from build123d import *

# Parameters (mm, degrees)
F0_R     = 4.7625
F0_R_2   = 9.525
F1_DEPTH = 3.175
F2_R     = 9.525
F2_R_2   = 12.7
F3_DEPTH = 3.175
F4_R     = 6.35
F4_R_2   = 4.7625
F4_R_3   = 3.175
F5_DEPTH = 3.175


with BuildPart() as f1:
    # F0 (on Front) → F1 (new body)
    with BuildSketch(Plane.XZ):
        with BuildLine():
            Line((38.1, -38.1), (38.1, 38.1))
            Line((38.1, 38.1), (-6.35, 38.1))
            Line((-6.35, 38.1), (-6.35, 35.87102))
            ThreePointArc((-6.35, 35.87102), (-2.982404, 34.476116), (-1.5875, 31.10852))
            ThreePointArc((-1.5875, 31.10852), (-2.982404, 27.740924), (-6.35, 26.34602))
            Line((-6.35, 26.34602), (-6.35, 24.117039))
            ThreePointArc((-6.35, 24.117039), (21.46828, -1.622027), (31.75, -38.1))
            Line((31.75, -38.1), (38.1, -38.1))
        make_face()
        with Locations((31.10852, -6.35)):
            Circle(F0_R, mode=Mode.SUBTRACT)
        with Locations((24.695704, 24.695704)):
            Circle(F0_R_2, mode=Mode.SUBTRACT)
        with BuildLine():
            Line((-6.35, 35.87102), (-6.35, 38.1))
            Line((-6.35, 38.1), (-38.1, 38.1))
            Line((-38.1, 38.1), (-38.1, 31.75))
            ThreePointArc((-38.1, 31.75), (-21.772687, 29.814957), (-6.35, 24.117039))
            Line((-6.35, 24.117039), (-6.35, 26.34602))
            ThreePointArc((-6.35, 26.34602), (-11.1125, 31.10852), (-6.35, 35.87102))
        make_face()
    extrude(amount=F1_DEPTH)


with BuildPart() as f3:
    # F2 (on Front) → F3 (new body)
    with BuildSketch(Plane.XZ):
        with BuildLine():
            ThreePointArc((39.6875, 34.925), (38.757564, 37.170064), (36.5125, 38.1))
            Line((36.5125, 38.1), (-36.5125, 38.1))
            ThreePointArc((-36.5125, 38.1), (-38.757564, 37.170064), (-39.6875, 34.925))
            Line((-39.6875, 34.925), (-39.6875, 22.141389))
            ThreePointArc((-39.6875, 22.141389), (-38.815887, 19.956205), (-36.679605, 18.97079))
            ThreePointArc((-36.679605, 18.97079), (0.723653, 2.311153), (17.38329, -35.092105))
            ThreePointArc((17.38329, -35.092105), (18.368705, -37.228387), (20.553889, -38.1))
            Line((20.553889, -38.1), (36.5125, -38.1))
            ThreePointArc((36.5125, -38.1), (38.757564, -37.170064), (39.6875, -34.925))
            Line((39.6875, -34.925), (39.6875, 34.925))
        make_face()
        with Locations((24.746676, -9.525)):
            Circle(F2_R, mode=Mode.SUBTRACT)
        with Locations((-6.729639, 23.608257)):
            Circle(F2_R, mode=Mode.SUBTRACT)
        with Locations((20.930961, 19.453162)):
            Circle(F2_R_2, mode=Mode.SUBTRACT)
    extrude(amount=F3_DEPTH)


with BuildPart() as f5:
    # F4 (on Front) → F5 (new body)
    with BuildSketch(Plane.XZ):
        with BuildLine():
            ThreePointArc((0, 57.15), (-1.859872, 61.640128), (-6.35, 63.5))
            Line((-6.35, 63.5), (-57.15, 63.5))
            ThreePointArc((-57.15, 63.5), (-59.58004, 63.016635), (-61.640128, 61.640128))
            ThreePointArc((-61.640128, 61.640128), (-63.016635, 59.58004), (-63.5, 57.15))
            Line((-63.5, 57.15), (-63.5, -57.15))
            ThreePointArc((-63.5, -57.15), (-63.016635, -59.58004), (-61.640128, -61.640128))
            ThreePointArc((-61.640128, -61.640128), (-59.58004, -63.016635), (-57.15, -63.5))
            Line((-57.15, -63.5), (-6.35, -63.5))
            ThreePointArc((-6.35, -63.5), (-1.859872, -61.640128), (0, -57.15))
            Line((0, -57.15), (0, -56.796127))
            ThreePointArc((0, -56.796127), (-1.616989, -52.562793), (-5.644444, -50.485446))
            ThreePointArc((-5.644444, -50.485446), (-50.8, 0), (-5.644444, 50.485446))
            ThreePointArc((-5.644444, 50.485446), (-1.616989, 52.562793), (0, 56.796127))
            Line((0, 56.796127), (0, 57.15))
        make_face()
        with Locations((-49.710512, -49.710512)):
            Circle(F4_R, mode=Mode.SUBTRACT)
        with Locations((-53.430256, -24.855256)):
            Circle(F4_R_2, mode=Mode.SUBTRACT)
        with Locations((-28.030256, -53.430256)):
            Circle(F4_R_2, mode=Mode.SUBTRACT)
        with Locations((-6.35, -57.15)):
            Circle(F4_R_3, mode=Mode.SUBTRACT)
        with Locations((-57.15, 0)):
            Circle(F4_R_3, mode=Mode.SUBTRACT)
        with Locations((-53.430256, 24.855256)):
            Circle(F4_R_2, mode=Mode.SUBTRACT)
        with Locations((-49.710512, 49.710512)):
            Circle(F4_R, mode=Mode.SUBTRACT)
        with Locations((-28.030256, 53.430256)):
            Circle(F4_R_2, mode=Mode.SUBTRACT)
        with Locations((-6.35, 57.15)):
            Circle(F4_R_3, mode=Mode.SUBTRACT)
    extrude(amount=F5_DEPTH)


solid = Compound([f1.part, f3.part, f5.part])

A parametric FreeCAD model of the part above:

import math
import FreeCAD as App
import Part
import Sketcher
from FreeCAD import Vector
Q = App.Units.Quantity

doc = App.newDocument("Part")
params = doc.addObject("Spreadsheet::Sheet", "Params")
for row, (alias, value) in enumerate([
    ("sketch1_diameter", "0.75 in"),
    ("sketch1_width", "3 in"),
    ("sketch1_radius", "2.75 in"),
    ("sketch1_diameter2", "0.375 in"),
    ("pad1_length", "0.125 in"),
    ("sketch2_diameter", "1 in"),
    ("sketch2_diameter2", "0.75 in"),
    ("sketch2_radius", "2.2499999 in"),
    ("sketch2_radius2", "0.125 in"),
    ("sketch2_height", "2.75 in"),
    ("pad2_length", "0.125 in"),
    ("sketch3_radius", "2 in"),
    ("sketch3_diameter", "0.5 in"),
    ("sketch3_diameter2", "0.25 in"),
    ("sketch3_width", "2 in"),
    ("sketch3_diameter3", "0.375 in"),
    ("pad3_length", "0.125 in"),
], start=1):
    params.set(f"A{row}", alias)
    params.set(f"B{row}", "=" + value)
    params.setAlias(f"B{row}", alias)

body = doc.addObject("PartDesign::Body", "Body")

# Sketch on XZ plane
sketch1 = body.newObject("Sketcher::SketchObject", "Sketch")
sketch1.AttachmentSupport = (doc.getObject("XZ_Plane"), [""])
sketch1.MapMode = "FlatFace"
sketch1.addGeometry([
    Part.LineSegment(Vector(38.1, -38.1, 0), Vector(38.1, 38.1, 0)),  # 0
    Part.LineSegment(Vector(38.1, 38.1, 0), Vector(-38.1, 38.1, 0)),  # 1
    Part.LineSegment(Vector(-38.1, 38.1, 0), Vector(-38.1, 31.8, 0)),  # 2
    Part.ArcOfCircle(Part.Circle(Vector(-38.1, -38.1, 0), Vector(0, 0, 1), 69.8), math.radians(63), math.radians(90)),  # 3
    Part.ArcOfCircle(Part.Circle(Vector(-38.1, -38.1, 0), Vector(0, 0, 1), 69.8), math.radians(0), math.radians(63)),  # 4
    Part.LineSegment(Vector(31.8, -38.1, 0), Vector(38.1, -38.1, 0)),  # 5
    Part.ArcOfCircle(Part.Circle(Vector(-6.4, 31.1, 0), Vector(0, 0, 1), 4.8), math.radians(0), math.radians(90)),  # 6
    Part.ArcOfCircle(Part.Circle(Vector(-6.4, 31.1, 0), Vector(0, 0, 1), 4.8), math.radians(-90), math.radians(0)),  # 7
    Part.ArcOfCircle(Part.Circle(Vector(-6.3, 31.1, 0), Vector(0, 0, 1), 4.8), math.radians(90), math.radians(270)),  # 8
    Part.Circle(Vector(31.1, -6.3, 0), Vector(0, 0, 1), 4.8),  # 9
    Part.Circle(Vector(24.7, 24.7, 0), Vector(0, 0, 1), 9.5),  # 10
], False)
sketch1.addConstraint([
    Sketcher.Constraint("Coincident", 0, 2, 1, 1),
    Sketcher.Constraint("Coincident", 1, 2, 2, 1),
    Sketcher.Constraint("Coincident", 2, 2, 3, 2),
    Sketcher.Constraint("Tangent", 3, 1, 4, 2),
    Sketcher.Constraint("Coincident", 4, 1, 5, 1),
    Sketcher.Constraint("Coincident", 5, 2, 0, 1),
    Sketcher.Constraint("Tangent", 6, 1, 7, 2),
    Sketcher.Constraint("Tangent", 7, 1, 8, 2),
    Sketcher.Constraint("Tangent", 8, 1, 6, 2),
    Sketcher.Constraint("Vertical", 0),
    Sketcher.Constraint("Horizontal", 1),
    Sketcher.Constraint("Vertical", 2),
    Sketcher.Constraint("Horizontal", 5),
    Sketcher.Constraint("Equal", 8, 9),
    Sketcher.Constraint("Symmetric", 1, 2, 5, 2, -1, 1),
    Sketcher.Constraint("Horizontal", 8, 3, 6, 1),
    Sketcher.Constraint("Vertical", 3, 3, 4, 3),
    Sketcher.Constraint("Vertical", 4, 3, 1, 2),
    Sketcher.Constraint("Vertical", 8, 3, 3, 1),
    Sketcher.Constraint("Vertical", 3, 1, 7, 1),
    Sketcher.Constraint("Vertical", 7, 1, 8, 1),
    Sketcher.Constraint("Equal", 1, 0),
    Sketcher.Constraint("Equal", 5, 2),
    Sketcher.Constraint("Diameter", 10, Q("0.75 in")),
    Sketcher.Constraint("DistanceX", 1, 2, 1, 1, Q("3 in")),
    Sketcher.Constraint("Radius", 4, Q("2.75 in")),
    Sketcher.Constraint("Diameter", 9, Q("0.375 in")),
    Sketcher.Constraint("DistanceX", 3, 1, 4, 1, Q("1.5 in")),
    Sketcher.Constraint("DistanceY", 9, 3, -1, 1, Q("0.25 in")),
    Sketcher.Constraint("DistanceX", 3, 3, 10, 3, 62.795701),
    Sketcher.Constraint("DistanceY", -1, 1, 6, 3, 31.10852),
    Sketcher.Constraint("DistanceX", -1, 1, 9, 3, 31.10852),
    Sketcher.Constraint("DistanceY", -1, 1, 10, 3, 24.695704),
])
sketch1.setExpression("Constraints[23]", "Params.sketch1_diameter")
sketch1.setExpression("Constraints[24]", "Params.sketch1_width")
sketch1.setExpression("Constraints[25]", "Params.sketch1_radius")
sketch1.setExpression("Constraints[26]", "Params.sketch1_diameter2")
pad1 = body.newObject("PartDesign::Pad", "Pad")
pad1.Profile = sketch1
pad1.setExpression("Length", "Params.pad1_length")
body2 = doc.addObject("PartDesign::Body", "Body001")

# Sketch on XZ plane
sketch2 = body2.newObject("Sketcher::SketchObject", "Sketch001")
sketch2.AttachmentSupport = (doc.getObject("XZ_Plane001"), [""])
sketch2.MapMode = "FlatFace"
sketch2.addGeometry([
    Part.ArcOfCircle(Part.Circle(Vector(36.5, 34.9, 0), Vector(0, 0, 1), 3.2), math.radians(0), math.radians(90)),  # 0
    Part.LineSegment(Vector(36.5, 38.1, 0), Vector(-36.5, 38.1, 0)),  # 1
    Part.ArcOfCircle(Part.Circle(Vector(-36.5, 34.9, 0), Vector(0, 0, 1), 3.2), math.radians(90), math.radians(180)),  # 2
    Part.LineSegment(Vector(-39.7, 34.9, 0), Vector(-39.7, 22.1, 0)),  # 3
    Part.ArcOfCircle(Part.Circle(Vector(-36.5, 22.1, 0), Vector(0, 0, 1), 3.2), math.radians(-180), math.radians(-93)),  # 4
    Part.ArcOfCircle(Part.Circle(Vector(-39.7, -38.1, 0), Vector(0, 0, 1), 57.1), math.radians(3), math.radians(87)),  # 5
    Part.ArcOfCircle(Part.Circle(Vector(20.6, -34.9, 0), Vector(0, 0, 1), 3.2), math.radians(-177), math.radians(-90)),  # 6
    Part.LineSegment(Vector(20.6, -38.1, 0), Vector(36.5, -38.1, 0)),  # 7
    Part.ArcOfCircle(Part.Circle(Vector(36.5, -34.9, 0), Vector(0, 0, 1), 3.2), math.radians(-90), math.radians(0)),  # 8
    Part.LineSegment(Vector(39.7, -34.9, 0), Vector(39.7, 34.9, 0)),  # 9
    Part.Circle(Vector(24.7, -9.5, 0), Vector(0, 0, 1), 9.5),  # 10
    Part.Circle(Vector(-6.7, 23.6, 0), Vector(0, 0, 1), 9.5),  # 11
    Part.Circle(Vector(20.9, 19.5, 0), Vector(0, 0, 1), 12.7),  # 12
], False)
sketch2.addConstraint([
    Sketcher.Constraint("Tangent", 0, 2, 1, 1),
    Sketcher.Constraint("Tangent", 1, 2, 2, 1),
    Sketcher.Constraint("Tangent", 2, 2, 3, 1),
    Sketcher.Constraint("Tangent", 3, 2, 4, 1),
    Sketcher.Constraint("Tangent", 4, 2, 5, 2),
    Sketcher.Constraint("Tangent", 5, 1, 6, 1),
    Sketcher.Constraint("Tangent", 6, 2, 7, 1),
    Sketcher.Constraint("Tangent", 7, 2, 8, 1),
    Sketcher.Constraint("Tangent", 8, 2, 9, 1),
    Sketcher.Constraint("Tangent", 9, 2, 0, 1),
    Sketcher.Constraint("Horizontal", 1),
    Sketcher.Constraint("Vertical", 3),
    Sketcher.Constraint("Horizontal", 7),
    Sketcher.Constraint("Vertical", 9),
    Sketcher.Constraint("Equal", 0, 2),
    Sketcher.Constraint("Equal", 2, 4),
    Sketcher.Constraint("Equal", 4, 6),
    Sketcher.Constraint("Equal", 6, 8),
    Sketcher.Constraint("Equal", 10, 11),
    Sketcher.Constraint("Symmetric", 2, 3, 8, 3, -1, 1),
    Sketcher.Constraint("Horizontal", 5, 3, 6, 2),
    Sketcher.Constraint("Vertical", 5, 3, 2, 2),
    Sketcher.Constraint("Diameter", 12, Q("1 in")),
    Sketcher.Constraint("Diameter", 10, Q("0.75 in")),
    Sketcher.Constraint("Radius", 5, Q("2.2499999 in")),
    Sketcher.Constraint("Radius", 0, Q("0.125 in")),
    Sketcher.Constraint("DistanceX", 5, 3, 0, 3, Q("2.9999999 in")),
    Sketcher.Constraint("DistanceY", 6, 3, 10, 3, Q("1 in")),
    Sketcher.Constraint("DistanceY", 9, 1, 9, 2, Q("2.75 in")),
    Sketcher.Constraint("DistanceX", 11, 3, 12, 3, Q("1.089 in")),
    Sketcher.Constraint("DistanceX", 11, 3, -1, 1, 6.729639),
    Sketcher.Constraint("DistanceY", -1, 1, 12, 3, 19.453162),
    Sketcher.Constraint("DistanceX", -1, 1, 10, 3, 24.746676),
    Sketcher.Constraint("DistanceY", -1, 1, 11, 3, 23.608257),
])
sketch2.setExpression("Constraints[22]", "Params.sketch2_diameter")
sketch2.setExpression("Constraints[23]", "Params.sketch2_diameter2")
sketch2.setExpression("Constraints[24]", "Params.sketch2_radius")
sketch2.setExpression("Constraints[25]", "Params.sketch2_radius2")
sketch2.setExpression("Constraints[28]", "Params.sketch2_height")
pad2 = body2.newObject("PartDesign::Pad", "Pad001")
pad2.Profile = sketch2
pad2.setExpression("Length", "Params.pad2_length")
body3 = doc.addObject("PartDesign::Body", "Body002")

# Sketch on XZ plane
sketch3 = body3.newObject("Sketcher::SketchObject", "Sketch002")
sketch3.AttachmentSupport = (doc.getObject("XZ_Plane002"), [""])
sketch3.MapMode = "FlatFace"
sketch3.addGeometry([
    Part.ArcOfCircle(Part.Circle(Vector(-6.35, 57.15, 0), Vector(0, 0, 1), 6.35), math.radians(0), math.radians(90)),  # 0
    Part.LineSegment(Vector(-6.35, 63.5, 0), Vector(-57.15, 63.5, 0)),  # 1
    Part.ArcOfCircle(Part.Circle(Vector(-57.15, 57.15, 0), Vector(0, 0, 1), 6.35), math.radians(90), math.radians(135)),  # 2
    Part.ArcOfCircle(Part.Circle(Vector(-57.15, 57.15, 0), Vector(0, 0, 1), 6.35), math.radians(135), math.radians(180)),  # 3
    Part.LineSegment(Vector(-63.5, 57.15, 0), Vector(-63.5, -57.15, 0)),  # 4
    Part.ArcOfCircle(Part.Circle(Vector(-57.15, -57.15, 0), Vector(0, 0, 1), 6.35), math.radians(180), math.radians(225)),  # 5
    Part.ArcOfCircle(Part.Circle(Vector(-57.15, -57.15, 0), Vector(0, 0, 1), 6.35), math.radians(-135), math.radians(-90)),  # 6
    Part.LineSegment(Vector(-57.15, -63.5, 0), Vector(-6.35, -63.5, 0)),  # 7
    Part.ArcOfCircle(Part.Circle(Vector(-6.35, -57.15, 0), Vector(0, 0, 1), 6.35), math.radians(-90), math.radians(0)),  # 8
    Part.LineSegment(Vector(0, -57.15, 0), Vector(0, -56.8, 0)),  # 9
    Part.ArcOfCircle(Part.Circle(Vector(-6.35, -56.8, 0), Vector(0, 0, 1), 6.35), math.radians(0), math.radians(84)),  # 10
    Part.ArcOfCircle(Part.Circle(Vector(0, 0, 0), Vector(0, 0, 1), 50.8), math.radians(96), math.radians(264)),  # 11
    Part.ArcOfCircle(Part.Circle(Vector(-6.35, 56.8, 0), Vector(0, 0, 1), 6.35), math.radians(-84), math.radians(0)),  # 12
    Part.LineSegment(Vector(0, 56.8, 0), Vector(0, 57.15, 0)),  # 13
    Part.Circle(Vector(-49.71, -49.71, 0), Vector(0, 0, 1), 6.35),  # 14
    Part.Circle(Vector(-53.43, -24.86, 0), Vector(0, 0, 1), 4.76),  # 15
    Part.Circle(Vector(-28.03, -53.43, 0), Vector(0, 0, 1), 4.76),  # 16
    Part.Circle(Vector(-6.35, -57.15, 0), Vector(0, 0, 1), 3.17),  # 17
    Part.Circle(Vector(-57.15, 0, 0), Vector(0, 0, 1), 3.17),  # 18
    Part.Circle(Vector(-53.43, 24.86, 0), Vector(0, 0, 1), 4.76),  # 19
    Part.Circle(Vector(-49.71, 49.71, 0), Vector(0, 0, 1), 6.35),  # 20
    Part.Circle(Vector(-28.03, 53.43, 0), Vector(0, 0, 1), 4.76),  # 21
    Part.Circle(Vector(-6.35, 57.15, 0), Vector(0, 0, 1), 3.17),  # 22
], False)
sketch3.addConstraint([
    Sketcher.Constraint("Tangent", 0, 2, 1, 1),
    Sketcher.Constraint("Tangent", 1, 2, 2, 1),
    Sketcher.Constraint("Tangent", 2, 2, 3, 1),
    Sketcher.Constraint("Tangent", 3, 2, 4, 1),
    Sketcher.Constraint("Tangent", 4, 2, 5, 1),
    Sketcher.Constraint("Tangent", 5, 2, 6, 1),
    Sketcher.Constraint("Tangent", 6, 2, 7, 1),
    Sketcher.Constraint("Tangent", 7, 2, 8, 1),
    Sketcher.Constraint("Tangent", 8, 2, 9, 1),
    Sketcher.Constraint("Tangent", 9, 2, 10, 1),
    Sketcher.Constraint("Tangent", 10, 2, 11, 2),
    Sketcher.Constraint("Tangent", 11, 1, 12, 1),
    Sketcher.Constraint("Tangent", 12, 2, 13, 1),
    Sketcher.Constraint("Tangent", 13, 2, 0, 1),
    Sketcher.Constraint("Horizontal", 1),
    Sketcher.Constraint("Vertical", 4),
    Sketcher.Constraint("Horizontal", 7),
    Sketcher.Constraint("Vertical", 9),
    Sketcher.Constraint("Vertical", 13),
    Sketcher.Constraint("Coincident", 11, 3, -1, 1),
    Sketcher.Constraint("Coincident", 17, 3, 8, 3),
    Sketcher.Constraint("Coincident", 22, 3, 0, 3),
    Sketcher.Constraint("Equal", 0, 2),
    Sketcher.Constraint("Equal", 2, 3),
    Sketcher.Constraint("Equal", 3, 5),
    Sketcher.Constraint("Equal", 5, 6),
    Sketcher.Constraint("Equal", 6, 8),
    Sketcher.Constraint("Equal", 8, 10),
    Sketcher.Constraint("Equal", 10, 12),
    Sketcher.Constraint("Equal", 12, 14),
    Sketcher.Constraint("Equal", 15, 16),
    Sketcher.Constraint("Equal", 17, 18),
    Sketcher.Constraint("Equal", 16, 19),
    Sketcher.Constraint("Equal", 14, 20),
    Sketcher.Constraint("Equal", 19, 21),
    Sketcher.Constraint("Equal", 18, 22),
    Sketcher.Constraint("Symmetric", 9, 2, 12, 2, -1, 1),
    Sketcher.Constraint("Symmetric", 15, 3, 19, 3, -1),
    Sketcher.Constraint("Symmetric", 14, 3, 20, 3, -1),
    Sketcher.Constraint("Symmetric", 16, 3, 21, 3, -1),
    Sketcher.Constraint("Symmetric", 2, 2, 5, 2, -1),
    Sketcher.Constraint("PointOnObject", 18, 3, -1),
    Sketcher.Constraint("Vertical", 6, 3, 18, 3),
    Sketcher.Constraint("Radius", 11, Q("2 in")),
    Sketcher.Constraint("Diameter", 14, Q("0.5 in")),
    Sketcher.Constraint("Diameter", 17, Q("0.25 in")),
    Sketcher.Constraint("DistanceX", 1, 2, 1, 1, Q("2 in")),
    Sketcher.Constraint("Diameter", 15, Q("0.375 in")),
    Sketcher.Constraint("DistanceY", 4, 2, 4, 1, Q("4.5 in")),
    Sketcher.Constraint("DistanceX", 5, 3, 14, 3, 7.439489),
    Sketcher.Constraint("DistanceY", 5, 3, 14, 3, 7.439488),
    Sketcher.Constraint("DistanceY", 10, 3, 15, 3, 31.940869),
    Sketcher.Constraint("DistanceY", 10, 3, 16, 3, 3.365869),
    Sketcher.Constraint("DistanceX", 2, 2, 21, 3, 33.609872),
    Sketcher.Constraint("DistanceY", 21, 3, 2, 2, 8.209872),
    Sketcher.Constraint("DistanceX", 15, 3, -1, 1, 53.430256),
])
sketch3.setExpression("Constraints[43]", "Params.sketch3_radius")
sketch3.setExpression("Constraints[44]", "Params.sketch3_diameter")
sketch3.setExpression("Constraints[45]", "Params.sketch3_diameter2")
sketch3.setExpression("Constraints[46]", "Params.sketch3_width")
sketch3.setExpression("Constraints[47]", "Params.sketch3_diameter3")
pad3 = body3.newObject("PartDesign::Pad", "Pad002")
pad3.Profile = sketch3
pad3.setExpression("Length", "Params.pad3_length")

doc.recompute()
